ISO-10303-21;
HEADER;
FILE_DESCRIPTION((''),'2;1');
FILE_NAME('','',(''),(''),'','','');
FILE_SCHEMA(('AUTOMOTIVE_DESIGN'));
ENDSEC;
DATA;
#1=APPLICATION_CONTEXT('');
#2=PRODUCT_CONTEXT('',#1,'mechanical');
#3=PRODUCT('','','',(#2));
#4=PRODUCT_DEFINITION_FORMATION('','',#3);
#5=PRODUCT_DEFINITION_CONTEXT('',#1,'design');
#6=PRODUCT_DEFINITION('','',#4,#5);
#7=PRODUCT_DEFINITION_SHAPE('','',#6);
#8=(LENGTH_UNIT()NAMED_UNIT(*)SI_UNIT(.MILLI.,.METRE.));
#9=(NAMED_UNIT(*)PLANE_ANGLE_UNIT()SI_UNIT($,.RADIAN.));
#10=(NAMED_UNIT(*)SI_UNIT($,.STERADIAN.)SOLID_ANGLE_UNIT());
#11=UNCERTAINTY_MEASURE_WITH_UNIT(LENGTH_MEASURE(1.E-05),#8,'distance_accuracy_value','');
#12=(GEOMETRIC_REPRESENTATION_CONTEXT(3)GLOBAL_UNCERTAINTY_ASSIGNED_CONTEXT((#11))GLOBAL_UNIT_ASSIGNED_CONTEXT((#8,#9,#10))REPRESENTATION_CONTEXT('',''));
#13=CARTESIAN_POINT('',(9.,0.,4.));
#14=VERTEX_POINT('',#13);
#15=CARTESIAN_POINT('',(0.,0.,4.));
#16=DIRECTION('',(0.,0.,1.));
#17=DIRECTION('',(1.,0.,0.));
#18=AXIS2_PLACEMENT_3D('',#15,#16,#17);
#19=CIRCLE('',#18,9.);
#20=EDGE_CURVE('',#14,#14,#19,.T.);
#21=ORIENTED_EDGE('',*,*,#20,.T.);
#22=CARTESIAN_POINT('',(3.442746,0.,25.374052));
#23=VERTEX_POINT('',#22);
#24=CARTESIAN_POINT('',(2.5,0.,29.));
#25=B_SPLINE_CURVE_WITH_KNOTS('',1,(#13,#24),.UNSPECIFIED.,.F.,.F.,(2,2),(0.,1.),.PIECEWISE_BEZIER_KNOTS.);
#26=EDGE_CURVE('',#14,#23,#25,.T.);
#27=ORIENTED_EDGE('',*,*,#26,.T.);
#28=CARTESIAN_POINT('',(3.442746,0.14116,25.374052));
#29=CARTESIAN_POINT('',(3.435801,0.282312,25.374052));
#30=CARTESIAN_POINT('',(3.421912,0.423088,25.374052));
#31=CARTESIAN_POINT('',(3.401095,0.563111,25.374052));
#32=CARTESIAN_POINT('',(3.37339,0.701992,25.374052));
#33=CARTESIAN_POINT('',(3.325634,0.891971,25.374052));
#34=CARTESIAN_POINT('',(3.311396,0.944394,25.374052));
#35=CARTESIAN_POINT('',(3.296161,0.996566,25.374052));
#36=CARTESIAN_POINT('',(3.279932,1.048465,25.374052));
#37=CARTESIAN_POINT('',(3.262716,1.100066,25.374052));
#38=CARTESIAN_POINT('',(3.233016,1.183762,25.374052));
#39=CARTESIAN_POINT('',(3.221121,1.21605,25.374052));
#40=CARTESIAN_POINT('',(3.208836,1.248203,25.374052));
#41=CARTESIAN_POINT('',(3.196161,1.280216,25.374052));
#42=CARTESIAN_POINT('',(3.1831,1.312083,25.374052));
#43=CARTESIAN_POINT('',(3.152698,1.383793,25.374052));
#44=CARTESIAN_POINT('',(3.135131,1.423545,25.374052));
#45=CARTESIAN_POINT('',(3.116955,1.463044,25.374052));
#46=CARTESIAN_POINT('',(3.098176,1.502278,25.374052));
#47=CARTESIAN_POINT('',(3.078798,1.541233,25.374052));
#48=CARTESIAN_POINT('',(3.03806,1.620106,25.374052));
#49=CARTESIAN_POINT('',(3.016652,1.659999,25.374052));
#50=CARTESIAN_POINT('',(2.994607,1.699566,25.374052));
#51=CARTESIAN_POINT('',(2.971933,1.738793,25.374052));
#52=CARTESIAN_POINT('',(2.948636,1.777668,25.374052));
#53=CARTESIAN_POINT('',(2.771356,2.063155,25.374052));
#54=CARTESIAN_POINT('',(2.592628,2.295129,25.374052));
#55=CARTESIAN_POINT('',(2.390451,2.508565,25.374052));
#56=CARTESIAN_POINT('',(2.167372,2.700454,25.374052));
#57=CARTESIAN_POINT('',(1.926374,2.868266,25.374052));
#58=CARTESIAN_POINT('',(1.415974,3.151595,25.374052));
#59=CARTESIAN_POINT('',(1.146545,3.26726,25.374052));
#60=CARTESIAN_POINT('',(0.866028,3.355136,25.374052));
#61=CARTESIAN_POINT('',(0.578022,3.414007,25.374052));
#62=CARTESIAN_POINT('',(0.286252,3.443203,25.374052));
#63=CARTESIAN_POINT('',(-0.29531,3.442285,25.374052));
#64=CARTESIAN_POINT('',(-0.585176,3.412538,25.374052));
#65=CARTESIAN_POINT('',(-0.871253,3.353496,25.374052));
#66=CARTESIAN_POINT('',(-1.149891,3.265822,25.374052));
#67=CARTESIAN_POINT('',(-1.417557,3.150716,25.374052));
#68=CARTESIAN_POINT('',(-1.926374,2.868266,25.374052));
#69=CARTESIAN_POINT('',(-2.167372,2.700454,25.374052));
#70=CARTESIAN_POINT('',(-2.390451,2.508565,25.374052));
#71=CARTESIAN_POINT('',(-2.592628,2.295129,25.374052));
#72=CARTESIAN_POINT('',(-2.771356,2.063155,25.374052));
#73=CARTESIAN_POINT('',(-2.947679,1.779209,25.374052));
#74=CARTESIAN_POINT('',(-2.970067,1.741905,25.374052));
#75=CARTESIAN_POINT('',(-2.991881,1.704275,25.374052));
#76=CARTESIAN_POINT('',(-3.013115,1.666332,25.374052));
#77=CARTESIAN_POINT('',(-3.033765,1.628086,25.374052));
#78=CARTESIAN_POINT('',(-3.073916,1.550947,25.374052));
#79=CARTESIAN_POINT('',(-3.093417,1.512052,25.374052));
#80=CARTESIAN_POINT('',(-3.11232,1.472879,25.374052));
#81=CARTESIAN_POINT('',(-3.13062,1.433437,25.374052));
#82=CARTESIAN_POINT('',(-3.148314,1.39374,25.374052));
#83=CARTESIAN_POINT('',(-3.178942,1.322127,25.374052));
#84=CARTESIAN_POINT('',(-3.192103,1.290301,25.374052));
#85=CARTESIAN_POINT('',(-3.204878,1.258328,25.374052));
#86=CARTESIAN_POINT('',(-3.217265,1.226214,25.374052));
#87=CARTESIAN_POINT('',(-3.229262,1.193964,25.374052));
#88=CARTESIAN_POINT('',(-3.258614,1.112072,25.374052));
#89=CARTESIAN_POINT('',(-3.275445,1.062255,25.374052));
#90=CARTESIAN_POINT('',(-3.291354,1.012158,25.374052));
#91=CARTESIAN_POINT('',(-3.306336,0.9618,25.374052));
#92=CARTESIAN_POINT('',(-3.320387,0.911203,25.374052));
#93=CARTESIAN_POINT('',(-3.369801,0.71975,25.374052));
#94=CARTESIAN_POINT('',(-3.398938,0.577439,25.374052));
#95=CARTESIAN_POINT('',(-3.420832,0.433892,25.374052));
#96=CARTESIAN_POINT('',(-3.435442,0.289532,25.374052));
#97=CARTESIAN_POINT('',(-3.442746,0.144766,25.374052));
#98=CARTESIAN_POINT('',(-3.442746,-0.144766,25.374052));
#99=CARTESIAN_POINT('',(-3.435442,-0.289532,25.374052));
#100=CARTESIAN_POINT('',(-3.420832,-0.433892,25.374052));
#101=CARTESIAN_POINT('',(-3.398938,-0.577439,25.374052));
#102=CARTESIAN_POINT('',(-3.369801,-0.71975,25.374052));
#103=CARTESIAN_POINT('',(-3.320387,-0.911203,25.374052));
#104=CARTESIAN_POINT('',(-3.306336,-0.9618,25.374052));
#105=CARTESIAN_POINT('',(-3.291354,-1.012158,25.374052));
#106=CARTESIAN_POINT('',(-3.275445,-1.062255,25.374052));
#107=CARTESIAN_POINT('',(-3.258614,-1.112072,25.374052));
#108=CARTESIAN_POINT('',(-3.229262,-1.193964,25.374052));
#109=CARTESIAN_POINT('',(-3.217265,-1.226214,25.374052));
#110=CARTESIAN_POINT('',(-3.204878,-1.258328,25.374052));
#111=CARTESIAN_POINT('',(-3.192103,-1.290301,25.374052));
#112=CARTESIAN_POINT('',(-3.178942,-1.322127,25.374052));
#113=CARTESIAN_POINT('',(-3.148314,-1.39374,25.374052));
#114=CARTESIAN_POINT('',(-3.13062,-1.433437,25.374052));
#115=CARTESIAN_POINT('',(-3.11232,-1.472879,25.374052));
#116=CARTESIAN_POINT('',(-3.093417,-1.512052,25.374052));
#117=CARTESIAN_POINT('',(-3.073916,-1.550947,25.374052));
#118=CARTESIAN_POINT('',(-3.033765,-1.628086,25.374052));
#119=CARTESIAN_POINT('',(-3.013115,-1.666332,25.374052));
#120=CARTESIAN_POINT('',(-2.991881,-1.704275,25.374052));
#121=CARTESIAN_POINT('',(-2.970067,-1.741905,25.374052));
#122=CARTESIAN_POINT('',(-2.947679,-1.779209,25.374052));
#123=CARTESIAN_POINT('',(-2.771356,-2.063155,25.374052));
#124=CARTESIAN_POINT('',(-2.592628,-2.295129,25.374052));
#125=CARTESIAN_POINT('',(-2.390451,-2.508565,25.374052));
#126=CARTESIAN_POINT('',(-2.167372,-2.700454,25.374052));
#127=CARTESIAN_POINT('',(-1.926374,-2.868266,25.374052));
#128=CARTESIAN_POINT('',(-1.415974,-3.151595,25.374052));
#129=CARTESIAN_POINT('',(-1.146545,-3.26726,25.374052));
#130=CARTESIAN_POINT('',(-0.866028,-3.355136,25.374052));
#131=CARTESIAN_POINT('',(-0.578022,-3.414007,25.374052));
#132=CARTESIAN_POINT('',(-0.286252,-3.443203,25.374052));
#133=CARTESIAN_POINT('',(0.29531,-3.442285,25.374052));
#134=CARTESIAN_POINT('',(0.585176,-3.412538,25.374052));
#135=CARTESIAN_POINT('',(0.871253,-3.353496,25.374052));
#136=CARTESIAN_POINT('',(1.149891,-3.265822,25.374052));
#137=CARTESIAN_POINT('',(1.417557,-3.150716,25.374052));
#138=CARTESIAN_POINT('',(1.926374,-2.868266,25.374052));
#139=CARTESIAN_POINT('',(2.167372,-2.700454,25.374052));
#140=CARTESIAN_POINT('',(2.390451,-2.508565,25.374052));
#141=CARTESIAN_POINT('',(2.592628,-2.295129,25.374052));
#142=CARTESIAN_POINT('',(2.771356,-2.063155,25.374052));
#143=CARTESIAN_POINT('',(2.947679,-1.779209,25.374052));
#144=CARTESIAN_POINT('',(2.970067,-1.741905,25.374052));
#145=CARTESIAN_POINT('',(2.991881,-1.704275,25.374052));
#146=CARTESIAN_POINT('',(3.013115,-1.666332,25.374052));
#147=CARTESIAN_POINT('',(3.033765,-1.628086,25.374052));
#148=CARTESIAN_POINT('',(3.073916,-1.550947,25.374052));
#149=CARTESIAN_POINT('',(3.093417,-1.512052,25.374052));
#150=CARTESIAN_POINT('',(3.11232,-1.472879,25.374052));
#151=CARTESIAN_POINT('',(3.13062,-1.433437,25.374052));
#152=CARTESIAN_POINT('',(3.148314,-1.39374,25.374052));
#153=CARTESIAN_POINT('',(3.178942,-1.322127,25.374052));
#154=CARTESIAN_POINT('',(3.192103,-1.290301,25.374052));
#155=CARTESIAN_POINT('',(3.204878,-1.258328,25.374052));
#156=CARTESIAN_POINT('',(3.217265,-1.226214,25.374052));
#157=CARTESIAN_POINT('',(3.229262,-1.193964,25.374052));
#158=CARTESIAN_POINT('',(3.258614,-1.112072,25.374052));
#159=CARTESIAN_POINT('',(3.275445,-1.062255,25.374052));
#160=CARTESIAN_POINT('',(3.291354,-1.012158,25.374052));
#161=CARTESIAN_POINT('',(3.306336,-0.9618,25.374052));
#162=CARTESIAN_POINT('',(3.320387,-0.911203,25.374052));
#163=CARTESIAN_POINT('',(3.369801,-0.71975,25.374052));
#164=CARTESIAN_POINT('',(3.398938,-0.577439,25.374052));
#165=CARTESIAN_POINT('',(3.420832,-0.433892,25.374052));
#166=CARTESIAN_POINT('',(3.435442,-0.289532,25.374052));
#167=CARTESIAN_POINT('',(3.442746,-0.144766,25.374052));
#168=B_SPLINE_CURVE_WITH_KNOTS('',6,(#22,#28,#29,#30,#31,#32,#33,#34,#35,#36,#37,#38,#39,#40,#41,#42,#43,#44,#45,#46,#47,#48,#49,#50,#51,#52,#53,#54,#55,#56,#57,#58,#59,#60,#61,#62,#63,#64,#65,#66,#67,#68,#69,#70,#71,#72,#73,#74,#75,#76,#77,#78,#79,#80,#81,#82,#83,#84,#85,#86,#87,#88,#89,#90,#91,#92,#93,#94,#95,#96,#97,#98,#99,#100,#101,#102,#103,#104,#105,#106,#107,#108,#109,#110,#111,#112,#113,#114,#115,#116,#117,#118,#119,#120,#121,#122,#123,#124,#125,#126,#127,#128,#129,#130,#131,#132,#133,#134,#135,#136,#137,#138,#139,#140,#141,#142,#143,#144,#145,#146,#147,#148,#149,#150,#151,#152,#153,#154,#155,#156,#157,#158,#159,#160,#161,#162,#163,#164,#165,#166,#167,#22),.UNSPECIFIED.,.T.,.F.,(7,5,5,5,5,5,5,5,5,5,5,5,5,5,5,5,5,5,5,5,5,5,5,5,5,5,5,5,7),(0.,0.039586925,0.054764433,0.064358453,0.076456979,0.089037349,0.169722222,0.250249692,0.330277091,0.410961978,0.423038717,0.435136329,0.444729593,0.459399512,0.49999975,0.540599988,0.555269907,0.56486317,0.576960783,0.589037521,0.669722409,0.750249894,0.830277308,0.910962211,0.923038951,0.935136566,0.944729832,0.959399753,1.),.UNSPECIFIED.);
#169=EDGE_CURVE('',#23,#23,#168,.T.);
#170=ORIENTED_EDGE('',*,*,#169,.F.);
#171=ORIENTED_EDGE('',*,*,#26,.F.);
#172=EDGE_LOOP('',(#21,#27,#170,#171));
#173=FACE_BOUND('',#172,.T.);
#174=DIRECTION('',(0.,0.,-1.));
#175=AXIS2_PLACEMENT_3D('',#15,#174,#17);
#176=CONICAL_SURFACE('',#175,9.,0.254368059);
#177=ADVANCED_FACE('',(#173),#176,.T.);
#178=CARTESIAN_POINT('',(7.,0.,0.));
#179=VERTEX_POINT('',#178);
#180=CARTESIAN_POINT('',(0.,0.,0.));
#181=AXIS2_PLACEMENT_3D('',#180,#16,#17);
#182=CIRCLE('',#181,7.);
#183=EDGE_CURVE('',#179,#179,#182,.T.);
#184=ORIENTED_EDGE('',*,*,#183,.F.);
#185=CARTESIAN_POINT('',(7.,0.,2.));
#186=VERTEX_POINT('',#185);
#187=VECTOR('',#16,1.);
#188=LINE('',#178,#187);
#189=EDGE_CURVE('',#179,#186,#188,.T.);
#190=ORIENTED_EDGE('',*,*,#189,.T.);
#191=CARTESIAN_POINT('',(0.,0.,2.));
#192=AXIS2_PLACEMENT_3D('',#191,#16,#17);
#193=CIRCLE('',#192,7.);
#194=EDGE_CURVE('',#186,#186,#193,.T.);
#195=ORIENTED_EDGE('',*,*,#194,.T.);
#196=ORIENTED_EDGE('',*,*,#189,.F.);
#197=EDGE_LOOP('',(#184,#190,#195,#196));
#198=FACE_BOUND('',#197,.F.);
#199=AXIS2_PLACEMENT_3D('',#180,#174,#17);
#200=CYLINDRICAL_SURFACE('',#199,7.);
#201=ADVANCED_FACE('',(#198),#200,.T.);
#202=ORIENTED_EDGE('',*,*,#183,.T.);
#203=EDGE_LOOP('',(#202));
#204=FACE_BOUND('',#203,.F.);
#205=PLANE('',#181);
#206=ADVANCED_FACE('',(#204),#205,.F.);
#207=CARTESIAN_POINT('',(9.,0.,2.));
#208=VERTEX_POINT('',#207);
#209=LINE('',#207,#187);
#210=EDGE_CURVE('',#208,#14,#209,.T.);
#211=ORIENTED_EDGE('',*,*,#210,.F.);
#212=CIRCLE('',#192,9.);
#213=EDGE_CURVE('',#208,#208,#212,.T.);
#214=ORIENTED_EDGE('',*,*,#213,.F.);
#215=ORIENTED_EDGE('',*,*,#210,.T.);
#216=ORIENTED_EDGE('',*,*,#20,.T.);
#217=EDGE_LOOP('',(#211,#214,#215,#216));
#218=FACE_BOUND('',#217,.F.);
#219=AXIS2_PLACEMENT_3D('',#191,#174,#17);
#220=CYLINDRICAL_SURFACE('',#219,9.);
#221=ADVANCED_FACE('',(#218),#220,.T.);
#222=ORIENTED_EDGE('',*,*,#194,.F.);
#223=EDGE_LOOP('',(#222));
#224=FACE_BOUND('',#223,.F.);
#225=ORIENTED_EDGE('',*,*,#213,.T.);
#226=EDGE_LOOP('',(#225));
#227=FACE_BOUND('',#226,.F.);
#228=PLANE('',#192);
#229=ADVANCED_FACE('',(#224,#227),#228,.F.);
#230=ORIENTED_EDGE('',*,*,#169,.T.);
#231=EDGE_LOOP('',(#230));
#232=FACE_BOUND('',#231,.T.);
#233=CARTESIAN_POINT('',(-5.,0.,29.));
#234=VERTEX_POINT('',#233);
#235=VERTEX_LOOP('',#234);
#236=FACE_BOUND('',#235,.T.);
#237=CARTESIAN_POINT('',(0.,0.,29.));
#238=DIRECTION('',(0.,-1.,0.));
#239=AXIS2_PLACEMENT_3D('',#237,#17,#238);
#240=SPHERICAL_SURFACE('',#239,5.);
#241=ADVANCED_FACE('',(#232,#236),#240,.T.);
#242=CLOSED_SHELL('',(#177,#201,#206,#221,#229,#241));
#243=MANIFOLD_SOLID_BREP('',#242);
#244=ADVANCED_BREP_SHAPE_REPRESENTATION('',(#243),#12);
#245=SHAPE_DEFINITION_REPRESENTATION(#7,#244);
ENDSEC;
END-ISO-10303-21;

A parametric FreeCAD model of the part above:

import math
import FreeCAD as App
import Part
import Sketcher

doc = App.newDocument("Part")
body = doc.addObject("PartDesign::Body", "Body")

sketch1 = body.newObject("Sketcher::SketchObject", "Sketch")
sketch1.AttachmentSupport = (doc.getObject("XY_Plane"), [""])
sketch1.MapMode = "FlatFace"
sketch1.addGeometry(Part.Circle(App.Vector(0, 0, 0), App.Vector(0, 0, 1), 7), False)
sketch1.addConstraint([
    Sketcher.Constraint("Coincident", 0, 3, -1, 1),
    Sketcher.Constraint("Diameter", 0, 14.0),
])
pad1 = body.newObject("PartDesign::Pad", "Pad")
pad1.Profile = sketch1
pad1.Length = 2

sketch2 = body.newObject("Sketcher::SketchObject", "Sketch001")
sketch2.AttachmentSupport = (doc.getObject("XY_Plane"), [""])
sketch2.MapMode = "FlatFace"
sketch2.AttachmentOffset = App.Placement(App.Vector(0, 0, 2), App.Rotation())
sketch2.addGeometry(Part.Circle(App.Vector(0, 0, 0), App.Vector(0, 0, 1), 9), False)
sketch2.addConstraint([
    Sketcher.Constraint("Coincident", 0, 3, -1, 1),
    Sketcher.Constraint("Diameter", 0, 18.0),
])
pad2 = body.newObject("PartDesign::Pad", "Pad001")
pad2.Profile = sketch2
pad2.Length = 2

sketch3 = body.newObject("Sketcher::SketchObject", "Sketch002")
sketch3.AttachmentSupport = (doc.getObject("XY_Plane"), [""])
sketch3.MapMode = "FlatFace"
sketch3.AttachmentOffset = App.Placement(App.Vector(0, 0, 4), App.Rotation())
sketch3.addGeometry(Part.Circle(App.Vector(0, 0, 0), App.Vector(0, 0, 1), 9), False)
sketch3.addConstraint([
    Sketcher.Constraint("Coincident", 0, 3, -1, 1),
    Sketcher.Constraint("Diameter", 0, 18.0),
])

sketch4 = body.newObject("Sketcher::SketchObject", "Sketch003")
sketch4.AttachmentSupport = (doc.getObject("XY_Plane"), [""])
sketch4.MapMode = "FlatFace"
sketch4.AttachmentOffset = App.Placement(App.Vector(0, 0, 29), App.Rotation())
sketch4.addGeometry(Part.Circle(App.Vector(0, 0, 0), App.Vector(0, 0, 1), 2.5), False)
sketch4.addConstraint([
    Sketcher.Constraint("Coincident", 0, 3, -1, 1),
    Sketcher.Constraint("Diameter", 0, 5.0),
])

additiveloft = body.newObject("PartDesign::AdditiveLoft", "AdditiveLoft")
additiveloft.Profile = sketch3
additiveloft.Sections = [sketch4]

sketch5 = body.newObject("Sketcher::SketchObject", "Sketch004")
sketch5.AttachmentSupport = (doc.getObject("XY_Plane"), [""])
sketch5.MapMode = "FlatFace"
sketch5.AttachmentOffset = App.Placement(App.Vector(0, 0, 29), App.Rotation())
sketch5.addGeometry([
    Part.LineSegment(App.Vector(-2.5, 0, 0), App.Vector(2.5, 0, 0)),
    Part.ArcOfCircle(Part.Circle(App.Vector(0, 0, 0), App.Vector(0, 0, 1), 2.5), math.radians(0), math.radians(180)),
    Part.ArcOfCircle(Part.Circle(App.Vector(0, 0, 0), App.Vector(0, 0, 1), 5), math.radians(180), math.radians(360)),
    Part.LineSegment(App.Vector(5, 0, 0), App.Vector(2.5, 0, 0)),
    Part.ArcOfCircle(Part.Circle(App.Vector(0, 0, 0), App.Vector(0, 0, 1), 2.5), math.radians(180), math.radians(360)),
    Part.LineSegment(App.Vector(-2.5, 0, 0), App.Vector(-5, 0, 0)),
], False)
sketch5.addConstraint([
    Sketcher.Constraint("Coincident", 0, 1, 1, 2),
    Sketcher.Constraint("Coincident", 1, 1, 0, 2),
    Sketcher.Constraint("Coincident", 2, 2, 3, 1),
    Sketcher.Constraint("Coincident", 3, 2, 4, 2),
    Sketcher.Constraint("Coincident", 4, 1, 5, 1),
    Sketcher.Constraint("Coincident", 5, 2, 2, 1),
    Sketcher.Constraint("Horizontal", 0),
    Sketcher.Constraint("Horizontal", 3),
    Sketcher.Constraint("Horizontal", 5),
    Sketcher.Constraint("Coincident", 1, 3, -1, 1),
    Sketcher.Constraint("Coincident", 2, 3, -1, 1),
    Sketcher.Constraint("Coincident", 4, 3, -1, 1),
    Sketcher.Constraint("Coincident", 3, 2, 1, 1),
    Sketcher.Constraint("PointOnObject", 0, 1, -1),
    Sketcher.Constraint("PointOnObject", 4, 1, -1),
    Sketcher.Constraint("Radius", 2, 5.0),
    Sketcher.Constraint("Radius", 1, 2.5),
])
revolution = body.newObject("PartDesign::Revolution", "Revolution")
revolution.Profile = sketch5
revolution.ReferenceAxis = (sketch5, ["H_Axis"])
revolution.Angle = 360

doc.recompute()
